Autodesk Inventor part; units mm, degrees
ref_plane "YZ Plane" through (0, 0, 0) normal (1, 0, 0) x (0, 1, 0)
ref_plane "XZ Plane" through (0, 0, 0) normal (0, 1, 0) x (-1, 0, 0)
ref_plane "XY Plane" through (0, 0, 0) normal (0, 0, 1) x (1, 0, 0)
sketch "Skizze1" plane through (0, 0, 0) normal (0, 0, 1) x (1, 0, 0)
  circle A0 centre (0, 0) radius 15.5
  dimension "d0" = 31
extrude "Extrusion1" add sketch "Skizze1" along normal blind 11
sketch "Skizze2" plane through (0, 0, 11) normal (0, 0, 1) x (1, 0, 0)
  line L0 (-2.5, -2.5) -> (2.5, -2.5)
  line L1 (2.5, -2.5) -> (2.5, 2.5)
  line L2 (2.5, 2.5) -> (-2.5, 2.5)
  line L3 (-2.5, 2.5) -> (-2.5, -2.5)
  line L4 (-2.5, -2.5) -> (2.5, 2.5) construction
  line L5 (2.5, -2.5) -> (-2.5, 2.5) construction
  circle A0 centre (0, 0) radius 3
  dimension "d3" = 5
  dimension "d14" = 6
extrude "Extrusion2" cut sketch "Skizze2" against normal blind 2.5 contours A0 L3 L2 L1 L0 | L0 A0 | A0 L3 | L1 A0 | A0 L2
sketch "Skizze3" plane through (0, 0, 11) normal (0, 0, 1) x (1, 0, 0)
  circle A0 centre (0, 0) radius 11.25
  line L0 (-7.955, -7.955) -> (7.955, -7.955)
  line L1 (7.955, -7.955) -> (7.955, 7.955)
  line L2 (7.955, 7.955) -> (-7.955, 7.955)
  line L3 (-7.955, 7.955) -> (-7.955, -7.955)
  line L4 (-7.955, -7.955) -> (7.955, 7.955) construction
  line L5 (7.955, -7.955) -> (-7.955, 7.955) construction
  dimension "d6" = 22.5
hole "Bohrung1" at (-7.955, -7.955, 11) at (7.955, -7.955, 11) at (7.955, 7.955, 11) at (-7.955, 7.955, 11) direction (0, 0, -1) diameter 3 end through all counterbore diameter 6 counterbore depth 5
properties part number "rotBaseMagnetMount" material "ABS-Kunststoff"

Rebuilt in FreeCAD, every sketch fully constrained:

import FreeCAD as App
import Part
import Sketcher

V = App.Vector

doc = App.newDocument("Part")
params = doc.addObject("Spreadsheet::Sheet", "Params")
for row, (alias, value) in enumerate([
    ("sketch1_diameter", "31 mm"),
    ("pad1_length", "11 mm"),
    ("sketch2_diameter", "6 mm"),
    ("pocket1_length", "2.5 mm"),
    ("sketch3_diameter", "3 mm"),
    ("hole_diameter", "3 mm"),
    ("hole_cbore_diameter", "6 mm"),
    ("hole_cbore_depth", "5 mm"),
], start=1):
    params.set(f"A{row}", alias)
    params.set(f"B{row}", "=" + value)
    params.setAlias(f"B{row}", alias)

body = doc.addObject("PartDesign::Body", "Body")

# Sketch on XY plane
sketch1 = doc.addObject("Sketcher::SketchObject", "Sketch")
body.addObject(sketch1)
sketch1.AttachmentSupport = (doc.XY_Plane, [""])
sketch1.MapMode = "FlatFace"
sketch1.addGeometry(Part.Circle(V(0, 0, 0), V(0, 0, 1), 16), False)
sketch1.addConstraint([
    Sketcher.Constraint("Coincident", 0, 3, -1, 1),
    Sketcher.Constraint("Diameter", 0, 31.0),
])
sketch1.setExpression("Constraints[1]", "Params.sketch1_diameter")
pad1 = doc.addObject("PartDesign::Pad", "Pad")
body.addObject(pad1)
pad1.Profile = sketch1
pad1.setExpression("Length", "Params.pad1_length")

# Sketch on XY plane
sketch2 = doc.addObject("Sketcher::SketchObject", "Sketch001")
body.addObject(sketch2)
sketch2.AttachmentSupport = (doc.XY_Plane, [""])
sketch2.MapMode = "FlatFace"
sketch2.AttachmentOffset = App.Placement(V(0, 0, 11), App.Rotation())
sketch2.addGeometry(Part.Circle(V(0, 0, 0), V(0, 0, 1), 3), False)
sketch2.addConstraint([
    Sketcher.Constraint("Coincident", 0, 3, -1, 1),
    Sketcher.Constraint("Diameter", 0, 6.0),
])
sketch2.setExpression("Constraints[1]", "Params.sketch2_diameter")
pocket1 = doc.addObject("PartDesign::Pocket", "Pocket")
body.addObject(pocket1)
pocket1.Profile = sketch2
pocket1.setExpression("Length", "Params.pocket1_length")

# Sketch on XY plane
sketch3 = doc.addObject("Sketcher::SketchObject", "Sketch002")
body.addObject(sketch3)
sketch3.AttachmentSupport = (doc.XY_Plane, [""])
sketch3.MapMode = "FlatFace"
sketch3.AttachmentOffset = App.Placement(V(0, 0, 11), App.Rotation())
sketch3.addGeometry([
    Part.Circle(V(-8, -8, 0), V(0, 0, 1), 1.5),
    Part.Circle(V(8, -8, 0), V(0, 0, 1), 1.5),
    Part.Circle(V(8, 8, 0), V(0, 0, 1), 1.5),
    Part.Circle(V(-8, 8, 0), V(0, 0, 1), 1.5),
], False)
sketch3.addConstraint([
    Sketcher.Constraint("Equal", 0, 1),
    Sketcher.Constraint("Equal", 1, 2),
    Sketcher.Constraint("Equal", 2, 3),
    Sketcher.Constraint("Symmetric", 0, 3, 2, 3, -1, 1),
    Sketcher.Constraint("Symmetric", 1, 3, 3, 3, -1, 1),
    Sketcher.Constraint("Symmetric", 0, 3, 1, 3, -2),
    Sketcher.Constraint("Diameter", 0, 3.0),
    Sketcher.Constraint("DistanceX", 0, 3, 1, 3, 15.91),
    Sketcher.Constraint("DistanceY", 1, 3, 2, 3, 15.91),
])
sketch3.setExpression("Constraints[6]", "Params.sketch3_diameter")
doc.recompute()
hole = doc.addObject("PartDesign::Hole", "Hole")
body.addObject(hole)
hole.Profile = sketch3
hole.ThreadType = "None"
hole.setExpression("Diameter", "Params.hole_diameter")
hole.DepthType = "ThroughAll"
hole.HoleCutType = "Counterbore"
hole.setExpression("HoleCutDiameter", "Params.hole_cbore_diameter")
hole.setExpression("HoleCutDepth", "Params.hole_cbore_depth")

doc.recompute()
